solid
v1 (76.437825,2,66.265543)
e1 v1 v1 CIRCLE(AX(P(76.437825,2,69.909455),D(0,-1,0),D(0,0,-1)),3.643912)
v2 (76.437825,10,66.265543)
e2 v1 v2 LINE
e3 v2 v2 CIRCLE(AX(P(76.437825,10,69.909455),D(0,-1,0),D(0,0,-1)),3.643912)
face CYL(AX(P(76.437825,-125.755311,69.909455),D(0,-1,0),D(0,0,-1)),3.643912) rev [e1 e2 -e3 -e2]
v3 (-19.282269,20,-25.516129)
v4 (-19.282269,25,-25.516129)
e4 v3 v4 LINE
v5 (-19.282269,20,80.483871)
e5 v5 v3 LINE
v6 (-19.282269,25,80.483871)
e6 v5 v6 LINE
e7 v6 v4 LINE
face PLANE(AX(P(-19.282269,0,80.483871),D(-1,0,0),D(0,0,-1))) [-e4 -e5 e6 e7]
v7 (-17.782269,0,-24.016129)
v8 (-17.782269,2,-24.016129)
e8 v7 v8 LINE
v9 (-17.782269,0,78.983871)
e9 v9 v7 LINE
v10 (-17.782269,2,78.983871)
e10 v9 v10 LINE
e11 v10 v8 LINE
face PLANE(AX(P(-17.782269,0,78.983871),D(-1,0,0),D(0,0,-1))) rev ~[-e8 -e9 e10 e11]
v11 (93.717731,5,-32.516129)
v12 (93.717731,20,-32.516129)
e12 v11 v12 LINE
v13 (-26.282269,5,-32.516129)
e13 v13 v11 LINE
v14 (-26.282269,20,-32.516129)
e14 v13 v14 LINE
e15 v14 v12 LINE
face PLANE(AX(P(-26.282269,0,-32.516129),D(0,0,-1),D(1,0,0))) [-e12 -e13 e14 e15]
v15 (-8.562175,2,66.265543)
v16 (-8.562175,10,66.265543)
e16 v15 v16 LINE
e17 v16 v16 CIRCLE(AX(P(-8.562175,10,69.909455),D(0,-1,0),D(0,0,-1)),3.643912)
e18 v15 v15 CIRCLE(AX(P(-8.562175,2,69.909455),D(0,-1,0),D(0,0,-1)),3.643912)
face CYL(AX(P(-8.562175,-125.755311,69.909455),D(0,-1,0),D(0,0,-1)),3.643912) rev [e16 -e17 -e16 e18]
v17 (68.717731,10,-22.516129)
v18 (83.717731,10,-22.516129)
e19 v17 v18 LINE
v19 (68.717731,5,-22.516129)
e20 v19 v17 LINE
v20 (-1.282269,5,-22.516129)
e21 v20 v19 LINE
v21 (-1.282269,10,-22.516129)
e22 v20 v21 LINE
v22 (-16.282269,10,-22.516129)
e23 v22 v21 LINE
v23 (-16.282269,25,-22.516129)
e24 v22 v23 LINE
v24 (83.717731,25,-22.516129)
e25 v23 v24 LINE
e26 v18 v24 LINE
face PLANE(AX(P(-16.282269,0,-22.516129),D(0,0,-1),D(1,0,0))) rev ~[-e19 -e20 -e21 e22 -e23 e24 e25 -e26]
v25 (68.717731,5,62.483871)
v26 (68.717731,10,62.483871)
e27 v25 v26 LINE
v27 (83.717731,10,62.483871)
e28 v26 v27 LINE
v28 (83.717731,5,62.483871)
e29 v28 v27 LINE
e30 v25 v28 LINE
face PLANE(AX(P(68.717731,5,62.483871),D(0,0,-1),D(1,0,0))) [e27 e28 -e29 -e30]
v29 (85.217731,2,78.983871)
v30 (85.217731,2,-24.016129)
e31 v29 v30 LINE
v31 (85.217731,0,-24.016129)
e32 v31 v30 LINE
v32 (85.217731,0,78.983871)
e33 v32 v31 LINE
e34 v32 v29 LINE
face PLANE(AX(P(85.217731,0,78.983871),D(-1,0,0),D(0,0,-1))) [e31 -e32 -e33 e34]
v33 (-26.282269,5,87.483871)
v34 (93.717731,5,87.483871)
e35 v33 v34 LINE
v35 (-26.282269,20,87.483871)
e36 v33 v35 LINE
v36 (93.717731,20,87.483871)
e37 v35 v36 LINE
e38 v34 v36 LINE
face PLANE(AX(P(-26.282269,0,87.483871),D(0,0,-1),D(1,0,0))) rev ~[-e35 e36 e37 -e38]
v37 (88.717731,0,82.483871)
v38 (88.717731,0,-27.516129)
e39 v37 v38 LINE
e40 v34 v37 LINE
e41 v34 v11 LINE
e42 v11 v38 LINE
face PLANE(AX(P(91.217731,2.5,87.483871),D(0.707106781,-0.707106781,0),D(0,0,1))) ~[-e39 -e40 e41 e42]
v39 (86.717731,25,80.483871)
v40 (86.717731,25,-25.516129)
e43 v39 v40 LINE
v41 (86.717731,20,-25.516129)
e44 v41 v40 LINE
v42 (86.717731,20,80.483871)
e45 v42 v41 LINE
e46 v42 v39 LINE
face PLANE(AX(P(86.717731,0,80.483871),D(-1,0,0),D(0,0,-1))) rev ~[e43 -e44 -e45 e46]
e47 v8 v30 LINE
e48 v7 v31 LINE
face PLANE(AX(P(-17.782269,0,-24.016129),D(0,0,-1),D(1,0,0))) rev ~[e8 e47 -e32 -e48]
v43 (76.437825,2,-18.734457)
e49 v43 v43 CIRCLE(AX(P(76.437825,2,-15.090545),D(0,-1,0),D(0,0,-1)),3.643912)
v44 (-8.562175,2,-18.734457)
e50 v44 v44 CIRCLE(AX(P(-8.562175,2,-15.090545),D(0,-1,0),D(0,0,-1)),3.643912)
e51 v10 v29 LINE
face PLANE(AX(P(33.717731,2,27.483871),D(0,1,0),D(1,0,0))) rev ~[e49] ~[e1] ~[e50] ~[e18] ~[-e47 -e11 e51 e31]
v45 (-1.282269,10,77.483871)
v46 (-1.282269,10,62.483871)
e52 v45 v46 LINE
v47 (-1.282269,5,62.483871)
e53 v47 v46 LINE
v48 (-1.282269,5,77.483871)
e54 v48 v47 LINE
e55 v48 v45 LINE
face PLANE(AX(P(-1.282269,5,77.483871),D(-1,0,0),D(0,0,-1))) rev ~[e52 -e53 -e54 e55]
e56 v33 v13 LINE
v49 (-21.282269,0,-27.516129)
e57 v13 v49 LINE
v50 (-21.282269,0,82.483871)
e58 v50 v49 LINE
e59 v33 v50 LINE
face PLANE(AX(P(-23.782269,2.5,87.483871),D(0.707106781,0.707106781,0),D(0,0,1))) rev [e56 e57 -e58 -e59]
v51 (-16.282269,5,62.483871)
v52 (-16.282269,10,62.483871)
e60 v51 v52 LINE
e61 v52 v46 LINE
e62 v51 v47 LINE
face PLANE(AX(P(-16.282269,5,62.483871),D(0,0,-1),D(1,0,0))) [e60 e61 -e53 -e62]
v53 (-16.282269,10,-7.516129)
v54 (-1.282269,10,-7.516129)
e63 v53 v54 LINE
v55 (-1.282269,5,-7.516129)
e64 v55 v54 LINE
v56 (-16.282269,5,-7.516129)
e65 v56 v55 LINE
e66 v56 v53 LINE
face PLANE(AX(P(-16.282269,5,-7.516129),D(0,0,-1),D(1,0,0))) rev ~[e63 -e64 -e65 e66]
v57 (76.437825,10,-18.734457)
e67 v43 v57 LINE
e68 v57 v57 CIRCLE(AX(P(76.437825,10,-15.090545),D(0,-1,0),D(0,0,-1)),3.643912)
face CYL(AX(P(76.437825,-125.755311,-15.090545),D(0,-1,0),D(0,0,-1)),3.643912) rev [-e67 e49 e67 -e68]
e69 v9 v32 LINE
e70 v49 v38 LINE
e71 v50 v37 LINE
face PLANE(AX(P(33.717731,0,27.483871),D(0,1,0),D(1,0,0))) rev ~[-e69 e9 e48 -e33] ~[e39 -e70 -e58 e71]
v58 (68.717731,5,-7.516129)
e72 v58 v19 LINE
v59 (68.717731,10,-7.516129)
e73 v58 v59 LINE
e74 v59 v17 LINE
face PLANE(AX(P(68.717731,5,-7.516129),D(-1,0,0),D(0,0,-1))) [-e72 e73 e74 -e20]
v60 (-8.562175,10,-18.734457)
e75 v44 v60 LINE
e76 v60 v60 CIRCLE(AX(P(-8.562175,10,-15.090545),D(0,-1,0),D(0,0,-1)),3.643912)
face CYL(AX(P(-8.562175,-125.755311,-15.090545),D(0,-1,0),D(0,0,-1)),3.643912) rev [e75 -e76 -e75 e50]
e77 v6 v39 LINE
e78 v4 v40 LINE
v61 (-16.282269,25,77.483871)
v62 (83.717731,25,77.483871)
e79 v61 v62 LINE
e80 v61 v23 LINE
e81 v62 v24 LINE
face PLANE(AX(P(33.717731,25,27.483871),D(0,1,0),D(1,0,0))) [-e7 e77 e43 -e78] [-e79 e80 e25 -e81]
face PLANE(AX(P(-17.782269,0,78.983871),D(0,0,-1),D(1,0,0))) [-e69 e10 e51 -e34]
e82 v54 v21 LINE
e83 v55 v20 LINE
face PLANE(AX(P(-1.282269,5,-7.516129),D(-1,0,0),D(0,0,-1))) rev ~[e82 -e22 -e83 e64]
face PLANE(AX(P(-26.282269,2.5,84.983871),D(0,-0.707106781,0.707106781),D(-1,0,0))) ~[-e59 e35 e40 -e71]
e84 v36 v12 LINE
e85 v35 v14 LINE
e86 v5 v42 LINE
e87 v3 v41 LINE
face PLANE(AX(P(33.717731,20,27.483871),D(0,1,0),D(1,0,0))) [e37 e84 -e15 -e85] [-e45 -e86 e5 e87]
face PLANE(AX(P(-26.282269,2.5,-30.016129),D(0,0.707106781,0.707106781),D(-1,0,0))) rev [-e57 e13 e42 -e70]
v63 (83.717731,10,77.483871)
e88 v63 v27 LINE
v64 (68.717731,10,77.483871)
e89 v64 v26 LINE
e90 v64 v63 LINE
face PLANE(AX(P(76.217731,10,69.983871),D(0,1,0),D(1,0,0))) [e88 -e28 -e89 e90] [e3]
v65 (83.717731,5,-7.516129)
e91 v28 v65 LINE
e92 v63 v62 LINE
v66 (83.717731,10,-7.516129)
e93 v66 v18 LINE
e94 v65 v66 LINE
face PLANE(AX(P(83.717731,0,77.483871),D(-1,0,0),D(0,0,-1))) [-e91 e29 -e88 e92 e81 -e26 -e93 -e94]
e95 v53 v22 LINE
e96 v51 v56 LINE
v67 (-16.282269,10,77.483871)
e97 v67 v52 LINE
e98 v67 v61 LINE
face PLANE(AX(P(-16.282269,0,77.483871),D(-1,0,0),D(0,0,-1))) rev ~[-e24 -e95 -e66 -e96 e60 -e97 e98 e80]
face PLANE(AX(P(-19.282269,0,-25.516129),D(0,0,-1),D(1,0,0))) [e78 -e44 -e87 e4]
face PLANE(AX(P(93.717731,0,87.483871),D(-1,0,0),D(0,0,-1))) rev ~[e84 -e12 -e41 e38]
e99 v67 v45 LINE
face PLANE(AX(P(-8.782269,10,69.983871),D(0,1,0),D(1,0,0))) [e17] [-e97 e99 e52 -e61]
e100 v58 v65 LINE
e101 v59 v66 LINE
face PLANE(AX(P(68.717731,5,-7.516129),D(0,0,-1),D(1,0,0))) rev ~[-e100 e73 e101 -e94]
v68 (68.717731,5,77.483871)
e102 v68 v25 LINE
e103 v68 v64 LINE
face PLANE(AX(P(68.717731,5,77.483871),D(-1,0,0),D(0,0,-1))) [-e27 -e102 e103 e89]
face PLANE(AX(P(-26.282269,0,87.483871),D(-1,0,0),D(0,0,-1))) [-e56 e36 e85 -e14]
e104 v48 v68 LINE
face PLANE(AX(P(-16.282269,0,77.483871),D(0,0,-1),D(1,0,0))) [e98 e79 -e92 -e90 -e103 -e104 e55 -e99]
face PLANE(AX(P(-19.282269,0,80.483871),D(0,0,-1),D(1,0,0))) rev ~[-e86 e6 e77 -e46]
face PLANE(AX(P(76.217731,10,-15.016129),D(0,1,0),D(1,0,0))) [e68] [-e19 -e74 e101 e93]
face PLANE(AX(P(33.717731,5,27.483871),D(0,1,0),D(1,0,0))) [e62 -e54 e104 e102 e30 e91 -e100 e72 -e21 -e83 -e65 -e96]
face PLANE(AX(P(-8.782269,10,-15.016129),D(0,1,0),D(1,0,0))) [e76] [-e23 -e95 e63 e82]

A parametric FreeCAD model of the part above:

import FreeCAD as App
import Part
import Sketcher


def edges_at(feature, points):
    """Names of the edges that pass closest to the given points."""
    edges = feature.Shape.Edges
    near = lambda p: min(range(len(edges)), key=lambda i: edges[i].distToShape(Part.Vertex(*p))[0])
    return sorted({f"Edge{near(p) + 1}" for p in points})


def add_polygon(sketch, points):
    """Adds a closed chain of lines whose ends are joined by coincident constraints."""
    first, n = sketch.GeometryCount, len(points)
    for a, b in zip(points, points[1:] + points[:1]):
        sketch.addGeometry(Part.LineSegment(App.Vector(*a, 0), App.Vector(*b, 0)), False)
    for i in range(n):
        sketch.addConstraint(Sketcher.Constraint("Coincident", first + i, 2, first + (i + 1) % n, 1))

doc = App.newDocument("Part")
body = doc.addObject("PartDesign::Body", "Body")

sketch1 = doc.addObject("Sketcher::SketchObject", "Sketch")
body.addObject(sketch1)
sketch1.AttachmentSupport = (doc.XZ_Plane, [""])
sketch1.MapMode = "FlatFace"
add_polygon(sketch1, [(-26.282269, -32.516129), (-26.282269, 87.483871), (93.717731, 87.483871), (93.717731, -32.516129)])
add_polygon(sketch1, [(86.717731, 80.483871), (-19.282269, 80.483871), (-19.282269, -25.516129), (86.717731, -25.516129)])
sketch1.addConstraint([
    Sketcher.Constraint("Vertical", 0),
    Sketcher.Constraint("Horizontal", 1),
    Sketcher.Constraint("Vertical", 2),
    Sketcher.Constraint("Horizontal", 3),
    Sketcher.Constraint("Horizontal", 4),
    Sketcher.Constraint("Vertical", 5),
    Sketcher.Constraint("Horizontal", 6),
    Sketcher.Constraint("Vertical", 7),
    Sketcher.Constraint("Equal", 3, 0),
    Sketcher.Constraint("Equal", 6, 5),
    Sketcher.Constraint("DistanceX", 1, 1, 1, 2, 120.0),
    Sketcher.Constraint("DistanceX", 4, 2, 4, 1, 106.0),
    Sketcher.Constraint("DistanceX", 0, 2, 4, 2, 7.0),
    Sketcher.Constraint("DistanceY", 4, 2, 0, 2, 7.0),
    Sketcher.Constraint("DistanceX", 0, 2, -1, 1, 26.282269),
    Sketcher.Constraint("DistanceY", -1, 1, 0, 2, 87.483871),
])
pad1 = doc.addObject("PartDesign::Pad", "Pad")
body.addObject(pad1)
pad1.Profile = sketch1
pad1.Length = 20
pad1.Reversed = True

sketch2 = doc.addObject("Sketcher::SketchObject", "Sketch001")
body.addObject(sketch2)
sketch2.AttachmentSupport = (doc.XZ_Plane, [""])
sketch2.MapMode = "FlatFace"
add_polygon(sketch2, [(-19.282269, -25.516129), (-19.282269, 80.483871), (86.717731, 80.483871), (86.717731, -25.516129)])
add_polygon(sketch2, [(83.717731, 77.483871), (-16.282269, 77.483871), (-16.282269, -22.516129), (83.717731, -22.516129)])
sketch2.addConstraint([
    Sketcher.Constraint("Vertical", 0),
    Sketcher.Constraint("Horizontal", 1),
    Sketcher.Constraint("Vertical", 2),
    Sketcher.Constraint("Horizontal", 3),
    Sketcher.Constraint("Horizontal", 4),
    Sketcher.Constraint("Vertical", 5),
    Sketcher.Constraint("Horizontal", 6),
    Sketcher.Constraint("Vertical", 7),
    Sketcher.Constraint("Equal", 3, 0),
    Sketcher.Constraint("Equal", 6, 5),
    Sketcher.Constraint("DistanceX", 1, 1, 1, 2, 106.0),
    Sketcher.Constraint("DistanceX", 4, 2, 4, 1, 100.0),
    Sketcher.Constraint("DistanceX", 0, 2, 4, 2, 3.0),
    Sketcher.Constraint("DistanceY", 4, 2, 0, 2, 3.0),
    Sketcher.Constraint("DistanceX", 0, 2, -1, 1, 19.282269),
    Sketcher.Constraint("DistanceY", -1, 1, 0, 2, 80.483871),
])
pad2 = doc.addObject("PartDesign::Pad", "Pad001")
body.addObject(pad2)
pad2.Profile = sketch2
pad2.Length = 25
pad2.Reversed = True

sketch3 = doc.addObject("Sketcher::SketchObject", "Sketch002")
body.addObject(sketch3)
sketch3.AttachmentSupport = (doc.XZ_Plane, [""])
sketch3.MapMode = "FlatFace"
add_polygon(sketch3, [(-16.282269, -22.516129), (-16.282269, 77.483871), (83.717731, 77.483871), (83.717731, -22.516129)])
sketch3.addConstraint([
    Sketcher.Constraint("Vertical", 0),
    Sketcher.Constraint("Horizontal", 1),
    Sketcher.Constraint("Vertical", 2),
    Sketcher.Constraint("Horizontal", 3),
    Sketcher.Constraint("Equal", 3, 0),
    Sketcher.Constraint("DistanceX", 1, 1, 1, 2, 100.0),
    Sketcher.Constraint("DistanceX", 0, 2, -1, 1, 16.282269),
    Sketcher.Constraint("DistanceY", -1, 1, 0, 2, 77.483871),
])
pad3 = doc.addObject("PartDesign::Pad", "Pad002")
body.addObject(pad3)
pad3.Profile = sketch3
pad3.Length = 5
pad3.Reversed = True

sketch4 = doc.addObject("Sketcher::SketchObject", "Sketch003")
body.addObject(sketch4)
sketch4.AttachmentSupport = (doc.XZ_Plane, [""])
sketch4.MapMode = "FlatFace"
add_polygon(sketch4, [(-17.782269, -24.016129), (-17.782269, 78.983871), (85.217731, 78.983871), (85.217731, -24.016129)])
sketch4.addConstraint([
    Sketcher.Constraint("Vertical", 0),
    Sketcher.Constraint("Horizontal", 1),
    Sketcher.Constraint("Vertical", 2),
    Sketcher.Constraint("Horizontal", 3),
    Sketcher.Constraint("Equal", 3, 0),
    Sketcher.Constraint("DistanceX", 1, 1, 1, 2, 103.0),
    Sketcher.Constraint("DistanceX", 0, 2, -1, 1, 17.782269),
    Sketcher.Constraint("DistanceY", -1, 1, 0, 2, 78.983871),
])
pocket1 = doc.addObject("PartDesign::Pocket", "Pocket")
body.addObject(pocket1)
pocket1.Profile = sketch4
pocket1.Length = 2

sketch5 = doc.addObject("Sketcher::SketchObject", "Sketch004")
body.addObject(sketch5)
sketch5.AttachmentSupport = (doc.XZ_Plane, [""])
sketch5.MapMode = "FlatFace"
sketch5.AttachmentOffset = App.Placement(App.Vector(0, 0, -5), App.Rotation())
add_polygon(sketch5, [(68.717731, -22.516129), (68.717731, -7.516129), (83.717731, -7.516129), (83.717731, -22.516129)])
add_polygon(sketch5, [(-16.282269, -22.516129), (-16.282269, -7.516129), (-1.282269, -7.516129), (-1.282269, -22.516129)])
add_polygon(sketch5, [(-16.282269, 62.483871), (-16.282269, 77.483871), (-1.282269, 77.483871), (-1.282269, 62.483871)])
add_polygon(sketch5, [(68.717731, 62.483871), (68.717731, 77.483871), (83.717731, 77.483871), (83.717731, 62.483871)])
sketch5.addConstraint([
    Sketcher.Constraint("Vertical", 0),
    Sketcher.Constraint("Horizontal", 1),
    Sketcher.Constraint("Vertical", 2),
    Sketcher.Constraint("Horizontal", 3),
    Sketcher.Constraint("Vertical", 4),
    Sketcher.Constraint("Horizontal", 5),
    Sketcher.Constraint("Vertical", 6),
    Sketcher.Constraint("Horizontal", 7),
    Sketcher.Constraint("Vertical", 8),
    Sketcher.Constraint("Horizontal", 9),
    Sketcher.Constraint("Vertical", 10),
    Sketcher.Constraint("Horizontal", 11),
    Sketcher.Constraint("Vertical", 12),
    Sketcher.Constraint("Horizontal", 13),
    Sketcher.Constraint("Vertical", 14),
    Sketcher.Constraint("Horizontal", 15),
    Sketcher.Constraint("Horizontal", 1, 2, 4, 2),
    Sketcher.Constraint("Horizontal", 3, 2, 6, 2),
    Sketcher.Constraint("Horizontal", 9, 2, 12, 2),
    Sketcher.Constraint("Horizontal", 11, 2, 14, 2),
    Sketcher.Constraint("Vertical", 7, 2, 8, 2),
    Sketcher.Constraint("Vertical", 6, 2, 9, 2),
    Sketcher.Constraint("Vertical", 3, 2, 12, 2),
    Sketcher.Constraint("Vertical", 2, 2, 13, 2),
    Sketcher.Constraint("Equal", 3, 5),
    Sketcher.Constraint("Equal", 15, 0),
    Sketcher.Constraint("Equal", 6, 8),
    Sketcher.Constraint("DistanceX", 1, 1, 1, 2, 15.0),
    Sketcher.Constraint("DistanceX", 4, 2, 0, 2, 85.0),
    Sketcher.Constraint("DistanceY", 4, 2, 8, 2, 85.0),
    Sketcher.Constraint("DistanceX", -1, 1, 0, 2, 68.717731),
    Sketcher.Constraint("DistanceY", 0, 2, -1, 1, 7.516129),
])
pad4 = doc.addObject("PartDesign::Pad", "Pad003")
body.addObject(pad4)
pad4.Profile = sketch5
pad4.Length = 5
pad4.Reversed = True

sketch6 = doc.addObject("Sketcher::SketchObject", "Sketch005")
body.addObject(sketch6)
sketch6.AttachmentSupport = (doc.XZ_Plane, [""])
sketch6.MapMode = "FlatFace"
sketch6.AttachmentOffset = App.Placement(App.Vector(0, 0, -5), App.Rotation())
sketch6.addGeometry([
    Part.Circle(App.Vector(-8.562175, -15.090545, 0), App.Vector(0, 0, 1), 3.643912),
    Part.Circle(App.Vector(76.437825, -15.090545, 0), App.Vector(0, 0, 1), 3.643912),
    Part.Circle(App.Vector(-8.562175, 69.909455, 0), App.Vector(0, 0, 1), 3.643912),
    Part.Circle(App.Vector(76.437825, 69.909455, 0), App.Vector(0, 0, 1), 3.643912),
], False)
sketch6.addConstraint([
    Sketcher.Constraint("Equal", 0, 1),
    Sketcher.Constraint("Equal", 1, 2),
    Sketcher.Constraint("Equal", 2, 3),
    Sketcher.Constraint("Horizontal", 0, 3, 1, 3),
    Sketcher.Constraint("Horizontal", 2, 3, 3, 3),
    Sketcher.Constraint("Vertical", 0, 3, 2, 3),
    Sketcher.Constraint("Vertical", 1, 3, 3, 3),
    Sketcher.Constraint("DistanceX", 0, 3, 1, 3, 85.0),
    Sketcher.Constraint("DistanceY", 0, 3, 2, 3, 85.0),
    Sketcher.Constraint("Diameter", 0, 7.287825),
    Sketcher.Constraint("DistanceX", 0, 3, -1, 1, 8.562175),
    Sketcher.Constraint("DistanceY", 0, 3, -1, 1, 15.090545),
])
pocket2 = doc.addObject("PartDesign::Pocket", "Pocket001")
body.addObject(pocket2)
pocket2.Profile = sketch6
pocket2.Type = "ThroughAll"
pocket2.Midplane = True
doc.recompute()

chamfer = doc.addObject("PartDesign::Chamfer", "Chamfer")
body.addObject(chamfer)
chamfer.Base = (pocket2, edges_at(pocket2, [
    (33.718, 0, 87.484),
    (-26.282, 0, 27.484),
    (33.718, 0, -32.516),
    (93.718, 0, 27.484),
]))
chamfer.Size = 5

doc.recompute()
